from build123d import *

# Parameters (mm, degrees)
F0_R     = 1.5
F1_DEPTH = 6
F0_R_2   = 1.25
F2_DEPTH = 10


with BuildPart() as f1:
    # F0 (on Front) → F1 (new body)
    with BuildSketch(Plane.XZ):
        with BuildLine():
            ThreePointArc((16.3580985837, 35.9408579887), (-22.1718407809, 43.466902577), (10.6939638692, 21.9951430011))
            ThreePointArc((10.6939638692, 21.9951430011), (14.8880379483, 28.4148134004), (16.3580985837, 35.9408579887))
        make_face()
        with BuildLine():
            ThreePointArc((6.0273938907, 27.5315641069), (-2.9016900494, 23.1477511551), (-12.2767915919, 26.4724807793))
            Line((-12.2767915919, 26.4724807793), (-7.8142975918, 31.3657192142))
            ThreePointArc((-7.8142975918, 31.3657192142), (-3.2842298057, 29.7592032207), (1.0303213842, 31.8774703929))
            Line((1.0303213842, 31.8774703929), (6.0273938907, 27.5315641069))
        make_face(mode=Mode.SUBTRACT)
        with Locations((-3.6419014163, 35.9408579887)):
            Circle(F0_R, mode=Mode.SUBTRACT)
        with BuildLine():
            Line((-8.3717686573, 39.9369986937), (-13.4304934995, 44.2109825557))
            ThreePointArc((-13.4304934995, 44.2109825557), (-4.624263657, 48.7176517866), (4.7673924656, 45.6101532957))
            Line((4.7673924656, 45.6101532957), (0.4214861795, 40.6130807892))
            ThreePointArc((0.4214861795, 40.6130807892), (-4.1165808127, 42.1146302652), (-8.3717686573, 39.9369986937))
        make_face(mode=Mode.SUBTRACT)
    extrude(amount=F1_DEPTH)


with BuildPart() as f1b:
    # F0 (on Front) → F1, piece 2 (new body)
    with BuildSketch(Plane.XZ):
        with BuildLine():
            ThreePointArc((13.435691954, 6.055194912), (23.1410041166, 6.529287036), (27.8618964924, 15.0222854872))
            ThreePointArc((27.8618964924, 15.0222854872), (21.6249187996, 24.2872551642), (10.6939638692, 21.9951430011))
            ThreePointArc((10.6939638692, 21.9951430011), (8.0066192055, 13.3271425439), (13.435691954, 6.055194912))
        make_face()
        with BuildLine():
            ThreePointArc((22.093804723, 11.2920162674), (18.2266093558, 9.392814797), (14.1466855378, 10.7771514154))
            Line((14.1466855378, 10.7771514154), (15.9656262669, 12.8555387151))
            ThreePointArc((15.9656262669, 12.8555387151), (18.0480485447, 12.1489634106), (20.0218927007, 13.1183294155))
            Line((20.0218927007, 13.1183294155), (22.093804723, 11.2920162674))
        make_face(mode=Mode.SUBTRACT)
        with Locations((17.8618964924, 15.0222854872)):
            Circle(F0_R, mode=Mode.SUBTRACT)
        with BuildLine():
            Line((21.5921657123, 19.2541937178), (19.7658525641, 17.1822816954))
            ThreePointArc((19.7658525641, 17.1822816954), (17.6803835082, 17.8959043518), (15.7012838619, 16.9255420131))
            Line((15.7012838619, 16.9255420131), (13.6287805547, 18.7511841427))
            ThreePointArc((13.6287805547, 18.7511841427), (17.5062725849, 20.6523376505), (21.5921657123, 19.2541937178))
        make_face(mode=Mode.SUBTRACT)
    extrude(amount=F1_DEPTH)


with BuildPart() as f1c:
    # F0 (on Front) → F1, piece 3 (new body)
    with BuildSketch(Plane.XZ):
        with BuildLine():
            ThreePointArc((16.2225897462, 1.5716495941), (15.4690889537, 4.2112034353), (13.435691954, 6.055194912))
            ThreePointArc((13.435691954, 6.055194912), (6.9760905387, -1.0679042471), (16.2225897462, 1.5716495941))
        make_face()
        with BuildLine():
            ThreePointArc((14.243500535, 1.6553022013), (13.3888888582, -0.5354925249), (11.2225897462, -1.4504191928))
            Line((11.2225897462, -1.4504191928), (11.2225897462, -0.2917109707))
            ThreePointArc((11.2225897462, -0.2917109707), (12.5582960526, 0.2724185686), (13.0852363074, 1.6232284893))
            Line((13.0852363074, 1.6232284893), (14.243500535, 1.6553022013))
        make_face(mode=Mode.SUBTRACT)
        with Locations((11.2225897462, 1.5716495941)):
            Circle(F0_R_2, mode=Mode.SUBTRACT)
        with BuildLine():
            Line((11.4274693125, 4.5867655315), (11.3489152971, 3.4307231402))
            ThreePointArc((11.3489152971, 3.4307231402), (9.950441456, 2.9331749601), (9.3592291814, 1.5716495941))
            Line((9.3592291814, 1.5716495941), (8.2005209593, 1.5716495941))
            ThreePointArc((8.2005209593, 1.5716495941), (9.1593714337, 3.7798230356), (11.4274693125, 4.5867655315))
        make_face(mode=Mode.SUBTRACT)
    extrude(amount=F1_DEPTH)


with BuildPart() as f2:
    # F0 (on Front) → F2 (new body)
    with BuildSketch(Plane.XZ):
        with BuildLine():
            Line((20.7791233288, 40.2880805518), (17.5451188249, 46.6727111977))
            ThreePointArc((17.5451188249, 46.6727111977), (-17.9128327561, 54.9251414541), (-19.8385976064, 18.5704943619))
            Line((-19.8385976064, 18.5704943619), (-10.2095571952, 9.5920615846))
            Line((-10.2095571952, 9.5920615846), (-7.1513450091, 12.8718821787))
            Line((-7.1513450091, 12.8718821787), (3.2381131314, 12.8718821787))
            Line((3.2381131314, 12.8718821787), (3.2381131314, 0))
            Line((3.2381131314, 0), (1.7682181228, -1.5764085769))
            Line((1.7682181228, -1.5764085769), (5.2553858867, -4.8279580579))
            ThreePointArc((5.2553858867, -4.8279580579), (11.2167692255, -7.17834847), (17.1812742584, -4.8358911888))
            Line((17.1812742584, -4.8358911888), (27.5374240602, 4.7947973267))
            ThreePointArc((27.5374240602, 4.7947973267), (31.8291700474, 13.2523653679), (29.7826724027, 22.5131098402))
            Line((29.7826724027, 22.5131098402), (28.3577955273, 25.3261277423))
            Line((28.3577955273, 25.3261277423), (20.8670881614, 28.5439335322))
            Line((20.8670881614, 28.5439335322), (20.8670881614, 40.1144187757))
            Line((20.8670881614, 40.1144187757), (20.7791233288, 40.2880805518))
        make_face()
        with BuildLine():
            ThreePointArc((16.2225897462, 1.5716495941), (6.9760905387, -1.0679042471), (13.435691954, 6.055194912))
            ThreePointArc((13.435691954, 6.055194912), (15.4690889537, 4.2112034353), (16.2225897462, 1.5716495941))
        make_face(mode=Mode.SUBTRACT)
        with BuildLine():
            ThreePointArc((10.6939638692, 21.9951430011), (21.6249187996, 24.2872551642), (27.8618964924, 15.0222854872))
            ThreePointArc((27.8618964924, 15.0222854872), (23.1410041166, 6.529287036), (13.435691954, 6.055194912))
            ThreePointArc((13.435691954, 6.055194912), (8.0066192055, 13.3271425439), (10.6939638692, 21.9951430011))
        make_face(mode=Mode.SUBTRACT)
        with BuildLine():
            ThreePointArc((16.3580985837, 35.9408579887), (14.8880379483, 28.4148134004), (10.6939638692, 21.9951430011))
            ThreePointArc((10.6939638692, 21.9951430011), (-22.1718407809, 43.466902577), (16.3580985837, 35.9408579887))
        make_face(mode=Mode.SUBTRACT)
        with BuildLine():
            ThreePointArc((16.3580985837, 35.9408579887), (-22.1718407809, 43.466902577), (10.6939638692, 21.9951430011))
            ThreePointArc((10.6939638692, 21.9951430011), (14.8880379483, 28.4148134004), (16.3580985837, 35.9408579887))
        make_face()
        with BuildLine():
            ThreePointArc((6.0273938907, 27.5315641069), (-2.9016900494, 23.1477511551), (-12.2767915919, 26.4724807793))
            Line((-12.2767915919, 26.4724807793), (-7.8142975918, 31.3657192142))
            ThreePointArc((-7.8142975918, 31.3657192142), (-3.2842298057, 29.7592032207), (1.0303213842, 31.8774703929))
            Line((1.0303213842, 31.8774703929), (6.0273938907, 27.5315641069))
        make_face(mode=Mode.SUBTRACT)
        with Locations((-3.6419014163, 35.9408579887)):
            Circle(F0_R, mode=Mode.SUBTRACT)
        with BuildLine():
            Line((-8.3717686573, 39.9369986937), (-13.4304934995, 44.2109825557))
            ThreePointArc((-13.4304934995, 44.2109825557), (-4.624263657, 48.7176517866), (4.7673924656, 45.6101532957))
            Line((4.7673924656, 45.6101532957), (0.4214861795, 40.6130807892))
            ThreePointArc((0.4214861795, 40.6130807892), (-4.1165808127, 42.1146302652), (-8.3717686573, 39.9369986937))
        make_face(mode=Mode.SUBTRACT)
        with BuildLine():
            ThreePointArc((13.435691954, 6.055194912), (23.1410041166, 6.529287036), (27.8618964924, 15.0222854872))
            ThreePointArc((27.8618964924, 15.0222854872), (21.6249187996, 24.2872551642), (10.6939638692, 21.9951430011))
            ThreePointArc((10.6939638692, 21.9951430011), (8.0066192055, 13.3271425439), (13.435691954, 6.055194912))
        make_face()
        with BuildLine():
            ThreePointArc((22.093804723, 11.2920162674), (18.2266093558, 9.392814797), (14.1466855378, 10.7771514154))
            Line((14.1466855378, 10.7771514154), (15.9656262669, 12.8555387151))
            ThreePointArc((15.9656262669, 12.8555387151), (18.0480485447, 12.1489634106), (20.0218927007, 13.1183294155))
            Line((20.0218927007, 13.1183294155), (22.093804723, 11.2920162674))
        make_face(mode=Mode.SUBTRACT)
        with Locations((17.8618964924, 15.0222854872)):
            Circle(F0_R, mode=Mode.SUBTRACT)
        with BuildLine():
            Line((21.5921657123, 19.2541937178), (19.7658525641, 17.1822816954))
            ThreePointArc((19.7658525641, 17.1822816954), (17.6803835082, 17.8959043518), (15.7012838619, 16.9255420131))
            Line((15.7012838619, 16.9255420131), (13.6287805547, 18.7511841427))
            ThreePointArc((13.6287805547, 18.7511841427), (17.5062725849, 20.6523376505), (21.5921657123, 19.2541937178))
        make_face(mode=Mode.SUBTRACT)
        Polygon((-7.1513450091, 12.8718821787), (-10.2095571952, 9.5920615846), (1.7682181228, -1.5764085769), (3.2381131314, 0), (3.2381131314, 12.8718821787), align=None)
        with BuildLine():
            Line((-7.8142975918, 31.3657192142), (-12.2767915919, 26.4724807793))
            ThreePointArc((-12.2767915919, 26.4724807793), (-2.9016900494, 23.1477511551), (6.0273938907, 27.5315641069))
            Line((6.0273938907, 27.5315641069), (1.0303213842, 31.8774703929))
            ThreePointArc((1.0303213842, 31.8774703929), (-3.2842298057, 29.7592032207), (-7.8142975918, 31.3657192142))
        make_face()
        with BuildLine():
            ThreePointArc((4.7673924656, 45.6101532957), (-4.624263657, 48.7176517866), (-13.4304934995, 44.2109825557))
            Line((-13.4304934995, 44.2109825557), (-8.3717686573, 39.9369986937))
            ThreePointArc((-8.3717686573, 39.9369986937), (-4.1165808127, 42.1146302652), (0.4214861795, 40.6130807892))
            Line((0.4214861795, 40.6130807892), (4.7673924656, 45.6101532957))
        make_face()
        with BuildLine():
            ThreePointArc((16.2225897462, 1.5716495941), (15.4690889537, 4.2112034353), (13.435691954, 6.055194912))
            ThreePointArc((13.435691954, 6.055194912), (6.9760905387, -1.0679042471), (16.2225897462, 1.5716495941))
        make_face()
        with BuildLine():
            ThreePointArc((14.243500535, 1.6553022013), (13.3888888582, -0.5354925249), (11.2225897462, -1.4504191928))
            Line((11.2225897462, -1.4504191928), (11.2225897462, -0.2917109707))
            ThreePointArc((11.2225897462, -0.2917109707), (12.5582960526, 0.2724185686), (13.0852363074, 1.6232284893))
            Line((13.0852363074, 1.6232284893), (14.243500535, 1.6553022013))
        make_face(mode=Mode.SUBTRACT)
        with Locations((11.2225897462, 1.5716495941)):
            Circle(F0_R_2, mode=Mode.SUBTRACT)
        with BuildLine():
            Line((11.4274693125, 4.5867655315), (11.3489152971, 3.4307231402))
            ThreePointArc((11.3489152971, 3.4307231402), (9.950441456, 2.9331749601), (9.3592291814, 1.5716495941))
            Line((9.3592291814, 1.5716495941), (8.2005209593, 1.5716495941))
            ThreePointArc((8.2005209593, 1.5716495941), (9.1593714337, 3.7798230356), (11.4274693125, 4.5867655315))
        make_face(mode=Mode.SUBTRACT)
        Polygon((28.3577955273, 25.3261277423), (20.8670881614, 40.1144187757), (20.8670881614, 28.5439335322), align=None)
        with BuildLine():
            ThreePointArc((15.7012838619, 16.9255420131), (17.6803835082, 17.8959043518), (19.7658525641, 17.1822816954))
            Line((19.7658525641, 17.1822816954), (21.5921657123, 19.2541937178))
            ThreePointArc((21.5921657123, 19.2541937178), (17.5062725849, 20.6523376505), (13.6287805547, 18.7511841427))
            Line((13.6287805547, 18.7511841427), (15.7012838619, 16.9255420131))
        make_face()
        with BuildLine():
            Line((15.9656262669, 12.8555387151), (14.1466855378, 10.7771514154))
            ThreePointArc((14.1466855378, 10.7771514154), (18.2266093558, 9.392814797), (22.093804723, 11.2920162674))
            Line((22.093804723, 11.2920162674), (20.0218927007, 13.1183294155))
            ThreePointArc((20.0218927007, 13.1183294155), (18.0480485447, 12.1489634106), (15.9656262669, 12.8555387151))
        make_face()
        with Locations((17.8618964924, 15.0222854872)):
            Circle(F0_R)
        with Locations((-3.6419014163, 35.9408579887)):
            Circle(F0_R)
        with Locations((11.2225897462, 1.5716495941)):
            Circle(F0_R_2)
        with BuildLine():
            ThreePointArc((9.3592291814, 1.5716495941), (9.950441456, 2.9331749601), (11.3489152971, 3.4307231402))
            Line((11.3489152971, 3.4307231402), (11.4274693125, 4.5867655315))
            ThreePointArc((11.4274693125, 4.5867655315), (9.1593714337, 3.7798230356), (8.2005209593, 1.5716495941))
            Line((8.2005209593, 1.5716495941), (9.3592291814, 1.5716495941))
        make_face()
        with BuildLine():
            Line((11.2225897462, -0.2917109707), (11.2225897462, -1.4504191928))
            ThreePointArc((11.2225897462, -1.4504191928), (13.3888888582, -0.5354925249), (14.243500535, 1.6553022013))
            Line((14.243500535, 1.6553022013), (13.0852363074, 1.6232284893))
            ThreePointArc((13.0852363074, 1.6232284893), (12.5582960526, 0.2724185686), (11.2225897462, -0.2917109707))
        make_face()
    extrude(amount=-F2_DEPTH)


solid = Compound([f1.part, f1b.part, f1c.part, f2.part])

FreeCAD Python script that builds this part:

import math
import FreeCAD as App
import Part
import Sketcher

doc = App.newDocument("Part")
params = doc.addObject("Spreadsheet::Sheet", "Params")
for row, (alias, value) in enumerate([
    ("sketch1_diameter", "3 mm"),
    ("sketch1_radius", "20 mm"),
    ("pad1_length", "6 mm"),
    ("sketch2_diameter", "3 mm"),
    ("sketch2_radius", "10 mm"),
    ("pad2_length", "6 mm"),
    ("sketch3_radius", "5 mm"),
    ("sketch3_diameter", "2.5 mm"),
    ("pad3_length", "6 mm"),
    ("sketch4_radius", "23.75 mm"),
    ("sketch4_radius2", "8.75 mm"),
    ("pad4_length", "10 mm"),
], start=1):
    params.set(f"A{row}", alias)
    params.set(f"B{row}", "=" + value)
    params.setAlias(f"B{row}", alias)

body = doc.addObject("PartDesign::Body", "Body")

# Sketch on XZ plane
sketch1 = body.newObject("Sketcher::SketchObject", "Sketch")
sketch1.AttachmentSupport = (doc.getObject("XZ_Plane"), [""])
sketch1.MapMode = "FlatFace"
sketch1.addGeometry(Part.ArcOfCircle(Part.Circle(App.Vector(-3.6, 35.9, 0), App.Vector(0, 0, 1), 20), math.radians(0), math.radians(316)), False)
sketch1.addGeometry(Part.ArcOfCircle(Part.Circle(App.Vector(-3.6, 35.9, 0), App.Vector(0, 0, 1), 20), math.radians(-44), math.radians(0)), False)
sketch1.addGeometry(Part.LineSegment(App.Vector(1, 31.9, 0), App.Vector(6, 27.5, 0)), False)
sketch1.addGeometry(Part.ArcOfCircle(Part.Circle(App.Vector(-3.6, 35.9, 0), App.Vector(0, 0, 1), 12.8), math.radians(-132), math.radians(-41)), False)
sketch1.addGeometry(Part.LineSegment(App.Vector(-12.3, 26.5, 0), App.Vector(-7.8, 31.4, 0)), False)
sketch1.addGeometry(Part.ArcOfCircle(Part.Circle(App.Vector(-3.6, 35.9, 0), App.Vector(0, 0, 1), 6.2), math.radians(-132), math.radians(-41)), False)
sketch1.addGeometry(Part.Circle(App.Vector(-3.6, 35.9, 0), App.Vector(0, 0, 1), 1.5), False)
sketch1.addGeometry(Part.ArcOfCircle(Part.Circle(App.Vector(-3.6, 35.9, 0), App.Vector(0, 0, 1), 6.2), math.radians(49), math.radians(140)), False)
sketch1.addGeometry(Part.LineSegment(App.Vector(-8.4, 39.9, 0), App.Vector(-13.4, 44.2, 0)), False)
sketch1.addGeometry(Part.ArcOfCircle(Part.Circle(App.Vector(-3.6, 35.9, 0), App.Vector(0, 0, 1), 12.8), math.radians(49), math.radians(140)), False)
sketch1.addGeometry(Part.LineSegment(App.Vector(4.8, 45.6, 0), App.Vector(0.4, 40.6, 0)), False)
sketch1.addConstraint(Sketcher.Constraint("Tangent", 0, 1, 1, 2))
sketch1.addConstraint(Sketcher.Constraint("Coincident", 1, 1, 0, 2))
sketch1.addConstraint(Sketcher.Constraint("Coincident", 2, 2, 3, 2))
sketch1.addConstraint(Sketcher.Constraint("Coincident", 3, 1, 4, 1))
sketch1.addConstraint(Sketcher.Constraint("Coincident", 4, 2, 5, 1))
sketch1.addConstraint(Sketcher.Constraint("Coincident", 5, 2, 2, 1))
sketch1.addConstraint(Sketcher.Constraint("Coincident", 7, 2, 8, 1))
sketch1.addConstraint(Sketcher.Constraint("Coincident", 8, 2, 9, 2))
sketch1.addConstraint(Sketcher.Constraint("Coincident", 9, 1, 10, 1))
sketch1.addConstraint(Sketcher.Constraint("Coincident", 10, 2, 7, 1))
sketch1.addConstraint(Sketcher.Constraint("Coincident", 3, 3, 0, 3))
sketch1.addConstraint(Sketcher.Constraint("Coincident", 5, 3, 0, 3))
sketch1.addConstraint(Sketcher.Constraint("Coincident", 6, 3, 0, 3))
sketch1.addConstraint(Sketcher.Constraint("Coincident", 7, 3, 0, 3))
sketch1.addConstraint(Sketcher.Constraint("Coincident", 9, 3, 0, 3))
sketch1.addConstraint(Sketcher.Constraint("Equal", 5, 7))
sketch1.addConstraint(Sketcher.Constraint("Equal", 3, 9))
sketch1.addConstraint(Sketcher.Constraint("Perpendicular", 2, 10))
sketch1.addConstraint(Sketcher.Constraint("Horizontal", 9, 3, 0, 1))
sketch1.addConstraint(Sketcher.Constraint("Diameter", 6, 3.0))
sketch1.addConstraint(Sketcher.Constraint("Radius", 0, 20.0))
sketch1.addConstraint(Sketcher.Constraint("DistanceY", -1, 1, 7, 2, 39.936999))
sketch1.addConstraint(Sketcher.Constraint("Radius", 3, 12.814503))
sketch1.addConstraint(Sketcher.Constraint("Radius", 5, 6.191994))
sketch1.addConstraint(Sketcher.Constraint("DistanceX", 0, 3, -1, 1, 3.641901))
sketch1.addConstraint(Sketcher.Constraint("DistanceX", 3, 1, -1, 1, 12.276792))
sketch1.addConstraint(Sketcher.Constraint("DistanceY", -1, 1, 3, 1, 26.472481))
sketch1.addConstraint(Sketcher.Constraint("DistanceY", -1, 1, 4, 2, 31.365719))
sketch1.addConstraint(Sketcher.Constraint("DistanceX", -1, 1, 5, 2, 1.030321))
sketch1.addConstraint(Sketcher.Constraint("DistanceY", -1, 1, 10, 2, 40.613081))
sketch1.addConstraint(Sketcher.Constraint("DistanceX", 2, 2, 1, 1, 4.66657))
sketch1.addConstraint(Sketcher.Constraint("DistanceY", 1, 1, 2, 2, 5.536421))
sketch1.addConstraint(Sketcher.Constraint("DistanceX", 8, 2, -1, 1, 13.430494))
sketch1.setExpression("Constraints[19]", "Params.sketch1_diameter")
sketch1.setExpression("Constraints[20]", "Params.sketch1_radius")
pad1 = body.newObject("PartDesign::Pad", "Pad")
pad1.Profile = sketch1
pad1.setExpression("Length", "Params.pad1_length")
body2 = doc.addObject("PartDesign::Body", "Body001")

# Sketch on XZ plane
sketch2 = body2.newObject("Sketcher::SketchObject", "Sketch001")
sketch2.AttachmentSupport = (doc.getObject("XZ_Plane001"), [""])
sketch2.MapMode = "FlatFace"
sketch2.addGeometry(Part.ArcOfCircle(Part.Circle(App.Vector(17.9, 15, 0), App.Vector(0, 0, 1), 10), math.radians(-116), math.radians(0)), False)
sketch2.addGeometry(Part.ArcOfCircle(Part.Circle(App.Vector(17.9, 15, 0), App.Vector(0, 0, 1), 10), math.radians(0), math.radians(136)), False)
sketch2.addGeometry(Part.ArcOfCircle(Part.Circle(App.Vector(17.9, 15, 0), App.Vector(0, 0, 1), 10), math.radians(136), math.radians(244)), False)
sketch2.addGeometry(Part.LineSegment(App.Vector(20, 13.1, 0), App.Vector(22.1, 11.3, 0)), False)
sketch2.addGeometry(Part.ArcOfCircle(Part.Circle(App.Vector(17.9, 15, 0), App.Vector(0, 0, 1), 5.6), math.radians(-131), math.radians(-41)), False)
sketch2.addGeometry(Part.LineSegment(App.Vector(14.1, 10.8, 0), App.Vector(16, 12.9, 0)), False)
sketch2.addGeometry(Part.ArcOfCircle(Part.Circle(App.Vector(17.9, 15, 0), App.Vector(0, 0, 1), 2.9), math.radians(-131), math.radians(-41)), False)
sketch2.addGeometry(Part.Circle(App.Vector(17.9, 15, 0), App.Vector(0, 0, 1), 1.5), False)
sketch2.addGeometry(Part.ArcOfCircle(Part.Circle(App.Vector(17.9, 15, 0), App.Vector(0, 0, 1), 5.6), math.radians(49), math.radians(139)), False)
sketch2.addGeometry(Part.LineSegment(App.Vector(21.6, 19.3, 0), App.Vector(19.8, 17.2, 0)), False)
sketch2.addGeometry(Part.ArcOfCircle(Part.Circle(App.Vector(17.9, 15, 0), App.Vector(0, 0, 1), 2.9), math.radians(49), math.radians(139)), False)
sketch2.addGeometry(Part.LineSegment(App.Vector(15.7, 16.9, 0), App.Vector(13.6, 18.8, 0)), False)
sketch2.addConstraint(Sketcher.Constraint("Tangent", 0, 2, 1, 1))
sketch2.addConstraint(Sketcher.Constraint("Tangent", 1, 2, 2, 1))
sketch2.addConstraint(Sketcher.Constraint("Tangent", 2, 2, 0, 1))
sketch2.addConstraint(Sketcher.Constraint("Coincident", 3, 2, 4, 2))
sketch2.addConstraint(Sketcher.Constraint("Coincident", 4, 1, 5, 1))
sketch2.addConstraint(Sketcher.Constraint("Coincident", 5, 2, 6, 1))
sketch2.addConstraint(Sketcher.Constraint("Coincident", 6, 2, 3, 1))
sketch2.addConstraint(Sketcher.Constraint("Coincident", 8, 1, 9, 1))
sketch2.addConstraint(Sketcher.Constraint("Coincident", 9, 2, 10, 1))
sketch2.addConstraint(Sketcher.Constraint("Coincident", 10, 2, 11, 1))
sketch2.addConstraint(Sketcher.Constraint("Coincident", 11, 2, 8, 2))
sketch2.addConstraint(Sketcher.Constraint("Coincident", 4, 3, 0, 3))
sketch2.addConstraint(Sketcher.Constraint("Coincident", 6, 3, 0, 3))
sketch2.addConstraint(Sketcher.Constraint("Coincident", 7, 3, 0, 3))
sketch2.addConstraint(Sketcher.Constraint("Coincident", 8, 3, 0, 3))
sketch2.addConstraint(Sketcher.Constraint("Coincident", 10, 3, 0, 3))
sketch2.addConstraint(Sketcher.Constraint("Equal", 4, 8))
sketch2.addConstraint(Sketcher.Constraint("Equal", 6, 10))
sketch2.addConstraint(Sketcher.Constraint("Perpendicular", 3, 9))
sketch2.addConstraint(Sketcher.Constraint("Horizontal", 10, 3, 0, 2))
sketch2.addConstraint(Sketcher.Constraint("Diameter", 7, 3.0))
sketch2.addConstraint(Sketcher.Constraint("Radius", 0, 10.0))
sketch2.addConstraint(Sketcher.Constraint("Radius", 4, 5.641273))
sketch2.addConstraint(Sketcher.Constraint("Radius", 6, 2.879346))
sketch2.addConstraint(Sketcher.Constraint("DistanceY", 0, 3, 11, 2, 3.728899))
sketch2.addConstraint(Sketcher.Constraint("DistanceX", -1, 1, 2, 2, 13.435692))
sketch2.addConstraint(Sketcher.Constraint("DistanceY", -1, 1, 4, 1, 10.777151))
sketch2.addConstraint(Sketcher.Constraint("DistanceY", -1, 1, 5, 2, 12.855539))
sketch2.addConstraint(Sketcher.Constraint("DistanceY", -1, 1, 6, 2, 13.118329))
sketch2.addConstraint(Sketcher.Constraint("DistanceY", -1, 1, 9, 2, 17.182282))
sketch2.addConstraint(Sketcher.Constraint("DistanceX", -1, 1, 11, 2, 13.628781))
sketch2.addConstraint(Sketcher.Constraint("DistanceX", 0, 3, 3, 2, 4.231908))
sketch2.addConstraint(Sketcher.Constraint("DistanceX", 4, 1, 0, 3, 3.715211))
sketch2.addConstraint(Sketcher.Constraint("DistanceY", 11, 2, 1, 2, 3.243959))
sketch2.addConstraint(Sketcher.Constraint("DistanceX", -1, 1, 10, 2, 15.701284))
sketch2.setExpression("Constraints[20]", "Params.sketch2_diameter")
sketch2.setExpression("Constraints[21]", "Params.sketch2_radius")
pad2 = body2.newObject("PartDesign::Pad", "Pad001")
pad2.Profile = sketch2
pad2.setExpression("Length", "Params.pad2_length")
body3 = doc.addObject("PartDesign::Body", "Body002")

# Sketch on XZ plane
sketch3 = body3.newObject("Sketcher::SketchObject", "Sketch002")
sketch3.AttachmentSupport = (doc.getObject("XZ_Plane002"), [""])
sketch3.MapMode = "FlatFace"
sketch3.addGeometry(Part.ArcOfCircle(Part.Circle(App.Vector(11.2, 1.6, 0), App.Vector(0, 0, 1), 5), math.radians(0), math.radians(64)), False)
sketch3.addGeometry(Part.ArcOfCircle(Part.Circle(App.Vector(11.2, 1.6, 0), App.Vector(0, 0, 1), 5), math.radians(64), math.radians(360)), False)
sketch3.addGeometry(Part.LineSegment(App.Vector(13.1, 1.6, 0), App.Vector(14.2, 1.7, 0)), False)
sketch3.addGeometry(Part.ArcOfCircle(Part.Circle(App.Vector(11.2, 1.6, 0), App.Vector(0, 0, 1), 3), math.radians(-90), math.radians(2)), False)
sketch3.addGeometry(Part.LineSegment(App.Vector(11.2, -1.5, 0), App.Vector(11.2, -0.3, 0)), False)
sketch3.addGeometry(Part.ArcOfCircle(Part.Circle(App.Vector(11.2, 1.6, 0), App.Vector(0, 0, 1), 1.9), math.radians(-90), math.radians(2)), False)
sketch3.addGeometry(Part.ArcOfCircle(Part.Circle(App.Vector(11.2, 1.6, 0), App.Vector(0, 0, 1), 3), math.radians(86), math.radians(180)), False)
sketch3.addGeometry(Part.LineSegment(App.Vector(11.4, 4.6, 0), App.Vector(11.3, 3.4, 0)), False)
sketch3.addGeometry(Part.ArcOfCircle(Part.Circle(App.Vector(11.2, 1.6, 0), App.Vector(0, 0, 1), 1.9), math.radians(86), math.radians(180)), False)
sketch3.addGeometry(Part.LineSegment(App.Vector(9.4, 1.6, 0), App.Vector(8.2, 1.6, 0)), False)
sketch3.addGeometry(Part.Circle(App.Vector(11.2, 1.6, 0), App.Vector(0, 0, 1), 1.2), False)
sketch3.addConstraint(Sketcher.Constraint("Tangent", 0, 1, 1, 2))
sketch3.addConstraint(Sketcher.Constraint("Coincident", 1, 1, 0, 2))
sketch3.addConstraint(Sketcher.Constraint("Coincident", 2, 2, 3, 2))
sketch3.addConstraint(Sketcher.Constraint("Coincident", 3, 1, 4, 1))
sketch3.addConstraint(Sketcher.Constraint("Coincident", 4, 2, 5, 1))
sketch3.addConstraint(Sketcher.Constraint("Coincident", 5, 2, 2, 1))
sketch3.addConstraint(Sketcher.Constraint("Coincident", 6, 1, 7, 1))
sketch3.addConstraint(Sketcher.Constraint("Coincident", 7, 2, 8, 1))
sketch3.addConstraint(Sketcher.Constraint("Coincident", 8, 2, 9, 1))
sketch3.addConstraint(Sketcher.Constraint("Coincident", 9, 2, 6, 2))
sketch3.addConstraint(Sketcher.Constraint("Vertical", 4))
sketch3.addConstraint(Sketcher.Constraint("Horizontal", 9))
sketch3.addConstraint(Sketcher.Constraint("Coincident", 3, 3, 0, 3))
sketch3.addConstraint(Sketcher.Constraint("Coincident", 5, 3, 0, 3))
sketch3.addConstraint(Sketcher.Constraint("Coincident", 6, 3, 0, 3))
sketch3.addConstraint(Sketcher.Constraint("Coincident", 8, 3, 0, 3))
sketch3.addConstraint(Sketcher.Constraint("Coincident", 10, 3, 0, 3))
sketch3.addConstraint(Sketcher.Constraint("Equal", 3, 6))
sketch3.addConstraint(Sketcher.Constraint("Equal", 5, 8))
sketch3.addConstraint(Sketcher.Constraint("Horizontal", 10, 3, 0, 1))
sketch3.addConstraint(Sketcher.Constraint("Horizontal", 0, 1, 8, 2))
sketch3.addConstraint(Sketcher.Constraint("Vertical", 10, 3, 3, 1))
sketch3.addConstraint(Sketcher.Constraint("Radius", 0, 5.0))
sketch3.addConstraint(Sketcher.Constraint("Diameter", 10, 2.5))
sketch3.addConstraint(Sketcher.Constraint("Radius", 3, 3.022069))
sketch3.addConstraint(Sketcher.Constraint("Radius", 5, 1.863361))
sketch3.addConstraint(Sketcher.Constraint("DistanceX", -1, 1, 2, 2, 14.243501))
sketch3.addConstraint(Sketcher.Constraint("DistanceX", -1, 1, 0, 3, 11.22259))
sketch3.addConstraint(Sketcher.Constraint("DistanceY", -1, 1, 0, 3, 1.57165))
sketch3.addConstraint(Sketcher.Constraint("DistanceX", -1, 1, 1, 1, 13.435692))
sketch3.addConstraint(Sketcher.Constraint("DistanceY", -1, 1, 5, 2, 1.623228))
sketch3.addConstraint(Sketcher.Constraint("DistanceX", -1, 1, 6, 1, 11.427469))
sketch3.addConstraint(Sketcher.Constraint("DistanceX", -1, 1, 7, 2, 11.348915))
sketch3.setExpression("Constraints[22]", "Params.sketch3_radius")
sketch3.setExpression("Constraints[23]", "Params.sketch3_diameter")
pad3 = body3.newObject("PartDesign::Pad", "Pad002")
pad3.Profile = sketch3
pad3.setExpression("Length", "Params.pad3_length")
body4 = doc.addObject("PartDesign::Body", "Body003")

# Sketch on XZ plane
sketch4 = body4.newObject("Sketcher::SketchObject", "Sketch003")
sketch4.AttachmentSupport = (doc.getObject("XZ_Plane003"), [""])
sketch4.MapMode = "FlatFace"
sketch4.addGeometry(Part.LineSegment(App.Vector(20.78, 40.29, 0), App.Vector(17.55, 46.67, 0)), False)
sketch4.addGeometry(Part.ArcOfCircle(Part.Circle(App.Vector(-3.64, 35.94, 0), App.Vector(0, 0, 1), 23.75), math.radians(27), math.radians(227)), False)
sketch4.addGeometry(Part.LineSegment(App.Vector(-19.84, 18.57, 0), App.Vector(-10.21, 9.59, 0)), False)
sketch4.addGeometry(Part.LineSegment(App.Vector(-10.21, 9.59, 0), App.Vector(1.77, -1.58, 0)), False)
sketch4.addGeometry(Part.LineSegment(App.Vector(1.77, -1.58, 0), App.Vector(5.26, -4.83, 0)), False)
sketch4.addGeometry(Part.ArcOfCircle(Part.Circle(App.Vector(11.22, 1.57, 0), App.Vector(0, 0, 1), 8.75), math.radians(-133), math.radians(-47)), False)
sketch4.addGeometry(Part.LineSegment(App.Vector(17.18, -4.84, 0), App.Vector(27.54, 4.79, 0)), False)
sketch4.addGeometry(Part.ArcOfCircle(Part.Circle(App.Vector(17.86, 15.02, 0), App.Vector(0, 0, 1), 14.08), math.radians(-47), math.radians(32)), False)
sketch4.addGeometry(Part.LineSegment(App.Vector(29.78, 22.51, 0), App.Vector(28.36, 25.33, 0)), False)
sketch4.addGeometry(Part.LineSegment(App.Vector(28.36, 25.33, 0), App.Vector(20.87, 40.11, 0)), False)
sketch4.addGeometry(Part.LineSegment(App.Vector(20.87, 40.11, 0), App.Vector(20.78, 40.29, 0)), False)
sketch4.addConstraint(Sketcher.Constraint("Tangent", 0, 2, 1, 1))
sketch4.addConstraint(Sketcher.Constraint("Tangent", 1, 2, 2, 1))
sketch4.addConstraint(Sketcher.Constraint("Coincident", 2, 2, 3, 1))
sketch4.addConstraint(Sketcher.Constraint("Coincident", 3, 2, 4, 1))
sketch4.addConstraint(Sketcher.Constraint("Tangent", 4, 2, 5, 1))
sketch4.addConstraint(Sketcher.Constraint("Tangent", 5, 2, 6, 1))
sketch4.addConstraint(Sketcher.Constraint("Coincident", 6, 2, 7, 1))
sketch4.addConstraint(Sketcher.Constraint("Coincident", 7, 2, 8, 1))
sketch4.addConstraint(Sketcher.Constraint("Coincident", 8, 2, 9, 1))
sketch4.addConstraint(Sketcher.Constraint("Coincident", 9, 2, 10, 1))
sketch4.addConstraint(Sketcher.Constraint("Coincident", 10, 2, 0, 1))
sketch4.addConstraint(Sketcher.Constraint("Parallel", 2, 3))
sketch4.addConstraint(Sketcher.Constraint("Parallel", 3, 4))
sketch4.addConstraint(Sketcher.Constraint("Parallel", 0, 8))
sketch4.addConstraint(Sketcher.Constraint("Parallel", 8, 9))
sketch4.addConstraint(Sketcher.Constraint("Parallel", 9, 10))
sketch4.addConstraint(Sketcher.Constraint("Radius", 1, 23.75))
sketch4.addConstraint(Sketcher.Constraint("Radius", 5, 8.75))
sketch4.addConstraint(Sketcher.Constraint("Radius", 7, 14.078968))
sketch4.addConstraint(Sketcher.Constraint("DistanceY", 5, 2, 7, 2, 27.349001))
sketch4.addConstraint(Sketcher.Constraint("DistanceX", 1, 3, -1, 1, 3.641901))
sketch4.addConstraint(Sketcher.Constraint("DistanceY", 7, 2, 0, 2, 24.159601))
sketch4.addConstraint(Sketcher.Constraint("DistanceX", 5, 2, 7, 2, 12.601398))
sketch4.addConstraint(Sketcher.Constraint("DistanceX", 7, 3, 8, 2, 10.495899))
sketch4.addConstraint(Sketcher.Constraint("Distance", 2, 13.165511))
sketch4.addConstraint(Sketcher.Constraint("Distance", 3, 16.376869))
sketch4.addConstraint(Sketcher.Constraint("Distance", 9, 16.577221))
sketch4.addConstraint(Sketcher.Constraint("Distance", 10, 0.19467))
sketch4.addConstraint(Sketcher.Constraint("DistanceX", -1, 1, 5, 3, 11.22259))
sketch4.addConstraint(Sketcher.Constraint("DistanceY", -1, 1, 5, 3, 1.57165))
sketch4.addConstraint(Sketcher.Constraint("DistanceX", -1, 1, 0, 2, 17.545119))
sketch4.addConstraint(Sketcher.Constraint("DistanceX", -1, 1, 9, 2, 20.867088))
sketch4.setExpression("Constraints[16]", "Params.sketch4_radius")
sketch4.setExpression("Constraints[17]", "Params.sketch4_radius2")
pad4 = body4.newObject("PartDesign::Pad", "Pad003")
pad4.Profile = sketch4
pad4.setExpression("Length", "Params.pad4_length")
pad4.Reversed = True

doc.recompute()
